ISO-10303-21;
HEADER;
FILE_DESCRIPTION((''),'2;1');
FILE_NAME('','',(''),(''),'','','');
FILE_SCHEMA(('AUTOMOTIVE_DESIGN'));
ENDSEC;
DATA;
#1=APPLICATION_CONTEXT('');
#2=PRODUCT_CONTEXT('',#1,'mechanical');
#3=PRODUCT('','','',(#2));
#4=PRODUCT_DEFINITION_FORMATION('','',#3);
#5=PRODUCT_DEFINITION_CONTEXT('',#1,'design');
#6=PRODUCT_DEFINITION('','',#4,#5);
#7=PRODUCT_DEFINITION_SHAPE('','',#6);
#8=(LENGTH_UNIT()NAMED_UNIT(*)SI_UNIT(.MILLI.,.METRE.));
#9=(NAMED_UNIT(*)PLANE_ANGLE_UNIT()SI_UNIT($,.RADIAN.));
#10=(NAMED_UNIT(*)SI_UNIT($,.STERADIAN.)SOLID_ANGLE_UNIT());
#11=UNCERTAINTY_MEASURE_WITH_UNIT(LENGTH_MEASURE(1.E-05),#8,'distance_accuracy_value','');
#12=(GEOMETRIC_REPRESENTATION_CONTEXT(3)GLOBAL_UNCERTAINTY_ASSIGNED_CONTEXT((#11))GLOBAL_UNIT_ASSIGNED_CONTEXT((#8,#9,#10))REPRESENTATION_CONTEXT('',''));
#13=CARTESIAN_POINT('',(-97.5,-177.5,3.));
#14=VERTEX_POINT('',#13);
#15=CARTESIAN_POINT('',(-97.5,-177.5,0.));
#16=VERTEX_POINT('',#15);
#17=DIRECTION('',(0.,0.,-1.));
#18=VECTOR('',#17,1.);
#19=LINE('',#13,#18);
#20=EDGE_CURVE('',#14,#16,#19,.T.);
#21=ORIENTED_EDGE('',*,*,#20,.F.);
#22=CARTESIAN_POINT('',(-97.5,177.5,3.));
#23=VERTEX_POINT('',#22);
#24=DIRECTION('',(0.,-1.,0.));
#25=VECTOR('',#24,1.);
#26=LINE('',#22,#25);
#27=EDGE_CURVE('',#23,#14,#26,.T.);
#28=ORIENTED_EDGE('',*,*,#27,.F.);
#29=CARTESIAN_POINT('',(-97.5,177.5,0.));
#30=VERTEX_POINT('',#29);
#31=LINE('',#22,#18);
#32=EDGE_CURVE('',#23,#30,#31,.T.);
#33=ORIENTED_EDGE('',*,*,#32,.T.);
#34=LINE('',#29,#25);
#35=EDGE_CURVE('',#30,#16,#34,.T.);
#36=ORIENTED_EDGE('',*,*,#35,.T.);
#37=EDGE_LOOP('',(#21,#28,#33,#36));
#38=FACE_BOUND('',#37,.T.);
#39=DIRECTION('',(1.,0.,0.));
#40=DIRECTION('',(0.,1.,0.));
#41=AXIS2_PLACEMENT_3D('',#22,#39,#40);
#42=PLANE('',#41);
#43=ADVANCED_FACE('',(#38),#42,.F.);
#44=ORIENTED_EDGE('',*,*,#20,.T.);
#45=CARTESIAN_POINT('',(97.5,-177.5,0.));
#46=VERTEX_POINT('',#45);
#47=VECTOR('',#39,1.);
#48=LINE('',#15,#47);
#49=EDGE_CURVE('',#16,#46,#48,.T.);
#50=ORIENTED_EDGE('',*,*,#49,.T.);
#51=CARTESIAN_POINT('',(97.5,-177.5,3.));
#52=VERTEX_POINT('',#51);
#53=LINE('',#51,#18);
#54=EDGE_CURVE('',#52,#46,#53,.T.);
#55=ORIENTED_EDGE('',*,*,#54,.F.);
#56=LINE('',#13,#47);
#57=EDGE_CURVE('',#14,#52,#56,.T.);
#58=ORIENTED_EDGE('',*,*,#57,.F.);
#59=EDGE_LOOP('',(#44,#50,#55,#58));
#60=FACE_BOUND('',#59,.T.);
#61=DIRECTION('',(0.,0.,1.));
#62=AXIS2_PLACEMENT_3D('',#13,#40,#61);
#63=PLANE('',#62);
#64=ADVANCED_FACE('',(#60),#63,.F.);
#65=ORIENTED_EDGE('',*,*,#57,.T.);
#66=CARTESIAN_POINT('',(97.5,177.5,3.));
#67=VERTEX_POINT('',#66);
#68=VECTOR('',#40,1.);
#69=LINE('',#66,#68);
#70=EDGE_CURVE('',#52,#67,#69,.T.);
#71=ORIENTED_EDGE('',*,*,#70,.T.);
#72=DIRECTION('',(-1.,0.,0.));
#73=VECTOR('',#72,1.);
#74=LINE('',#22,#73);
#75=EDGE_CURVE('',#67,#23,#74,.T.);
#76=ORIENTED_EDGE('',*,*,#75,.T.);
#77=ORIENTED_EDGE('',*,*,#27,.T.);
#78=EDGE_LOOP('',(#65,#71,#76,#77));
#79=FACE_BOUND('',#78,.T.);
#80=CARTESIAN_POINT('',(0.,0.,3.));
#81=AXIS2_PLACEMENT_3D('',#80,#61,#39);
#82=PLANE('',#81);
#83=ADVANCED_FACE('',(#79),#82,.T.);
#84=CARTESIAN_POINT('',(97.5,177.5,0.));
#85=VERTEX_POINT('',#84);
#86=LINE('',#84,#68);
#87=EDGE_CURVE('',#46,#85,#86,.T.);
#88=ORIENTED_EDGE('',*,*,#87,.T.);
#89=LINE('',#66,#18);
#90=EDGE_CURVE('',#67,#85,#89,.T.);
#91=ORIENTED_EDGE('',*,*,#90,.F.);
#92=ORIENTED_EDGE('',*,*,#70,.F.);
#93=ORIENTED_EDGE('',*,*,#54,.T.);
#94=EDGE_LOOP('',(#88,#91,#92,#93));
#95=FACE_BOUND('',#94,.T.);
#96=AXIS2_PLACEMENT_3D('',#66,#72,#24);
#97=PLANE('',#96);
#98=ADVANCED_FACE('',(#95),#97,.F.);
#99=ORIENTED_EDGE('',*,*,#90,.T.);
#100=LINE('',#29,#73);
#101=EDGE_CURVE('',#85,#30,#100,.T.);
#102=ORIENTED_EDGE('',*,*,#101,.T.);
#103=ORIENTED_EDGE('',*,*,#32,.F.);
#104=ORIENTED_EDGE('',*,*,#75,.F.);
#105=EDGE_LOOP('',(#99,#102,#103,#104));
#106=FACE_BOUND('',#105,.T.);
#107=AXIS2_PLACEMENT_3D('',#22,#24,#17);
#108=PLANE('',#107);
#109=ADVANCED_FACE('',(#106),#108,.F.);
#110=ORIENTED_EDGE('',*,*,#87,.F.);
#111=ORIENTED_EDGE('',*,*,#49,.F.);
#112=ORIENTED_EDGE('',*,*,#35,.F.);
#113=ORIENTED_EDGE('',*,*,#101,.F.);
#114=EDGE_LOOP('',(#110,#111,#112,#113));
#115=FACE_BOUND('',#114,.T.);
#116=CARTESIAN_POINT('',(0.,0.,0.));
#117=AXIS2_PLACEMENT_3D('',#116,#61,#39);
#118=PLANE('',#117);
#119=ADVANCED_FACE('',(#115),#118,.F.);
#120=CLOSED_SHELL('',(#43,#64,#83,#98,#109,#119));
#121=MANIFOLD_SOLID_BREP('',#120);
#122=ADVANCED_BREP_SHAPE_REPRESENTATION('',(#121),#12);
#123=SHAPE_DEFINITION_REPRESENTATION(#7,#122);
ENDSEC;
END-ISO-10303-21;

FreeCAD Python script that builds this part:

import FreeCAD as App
import Part
import Sketcher

V = App.Vector
Q = App.Units.Quantity

doc = App.newDocument("Part")
body = doc.addObject("PartDesign::Body", "Body")

sketch1 = body.newObject("Sketcher::SketchObject", "Sketch")
sketch1.AttachmentSupport = (doc.getObject("XY_Plane"), [""])
sketch1.MapMode = "FlatFace"
sketch1.addGeometry([
    Part.LineSegment(V(-98, 178, 0), V(-98, -178, 0)),
    Part.LineSegment(V(-98, -178, 0), V(98, -178, 0)),
    Part.LineSegment(V(98, -178, 0), V(98, 178, 0)),
    Part.LineSegment(V(98, 178, 0), V(-98, 178, 0)),
], False)
sketch1.addConstraint([
    Sketcher.Constraint("Coincident", 0, 2, 1, 1),
    Sketcher.Constraint("Coincident", 1, 2, 2, 1),
    Sketcher.Constraint("Coincident", 2, 2, 3, 1),
    Sketcher.Constraint("Coincident", 3, 2, 0, 1),
    Sketcher.Constraint("Vertical", 0),
    Sketcher.Constraint("Horizontal", 1),
    Sketcher.Constraint("Vertical", 2),
    Sketcher.Constraint("Horizontal", 3),
    Sketcher.Constraint("Symmetric", 0, 2, 2, 2, -1, 1),
    Sketcher.Constraint("DistanceX", 1, 1, 1, 2, Q("195 mm")),
    Sketcher.Constraint("DistanceY", 0, 2, 0, 1, Q("355 mm")),
])
pad1 = body.newObject("PartDesign::Pad", "Pad")
pad1.Profile = sketch1
pad1.Length = 3

doc.recompute()
